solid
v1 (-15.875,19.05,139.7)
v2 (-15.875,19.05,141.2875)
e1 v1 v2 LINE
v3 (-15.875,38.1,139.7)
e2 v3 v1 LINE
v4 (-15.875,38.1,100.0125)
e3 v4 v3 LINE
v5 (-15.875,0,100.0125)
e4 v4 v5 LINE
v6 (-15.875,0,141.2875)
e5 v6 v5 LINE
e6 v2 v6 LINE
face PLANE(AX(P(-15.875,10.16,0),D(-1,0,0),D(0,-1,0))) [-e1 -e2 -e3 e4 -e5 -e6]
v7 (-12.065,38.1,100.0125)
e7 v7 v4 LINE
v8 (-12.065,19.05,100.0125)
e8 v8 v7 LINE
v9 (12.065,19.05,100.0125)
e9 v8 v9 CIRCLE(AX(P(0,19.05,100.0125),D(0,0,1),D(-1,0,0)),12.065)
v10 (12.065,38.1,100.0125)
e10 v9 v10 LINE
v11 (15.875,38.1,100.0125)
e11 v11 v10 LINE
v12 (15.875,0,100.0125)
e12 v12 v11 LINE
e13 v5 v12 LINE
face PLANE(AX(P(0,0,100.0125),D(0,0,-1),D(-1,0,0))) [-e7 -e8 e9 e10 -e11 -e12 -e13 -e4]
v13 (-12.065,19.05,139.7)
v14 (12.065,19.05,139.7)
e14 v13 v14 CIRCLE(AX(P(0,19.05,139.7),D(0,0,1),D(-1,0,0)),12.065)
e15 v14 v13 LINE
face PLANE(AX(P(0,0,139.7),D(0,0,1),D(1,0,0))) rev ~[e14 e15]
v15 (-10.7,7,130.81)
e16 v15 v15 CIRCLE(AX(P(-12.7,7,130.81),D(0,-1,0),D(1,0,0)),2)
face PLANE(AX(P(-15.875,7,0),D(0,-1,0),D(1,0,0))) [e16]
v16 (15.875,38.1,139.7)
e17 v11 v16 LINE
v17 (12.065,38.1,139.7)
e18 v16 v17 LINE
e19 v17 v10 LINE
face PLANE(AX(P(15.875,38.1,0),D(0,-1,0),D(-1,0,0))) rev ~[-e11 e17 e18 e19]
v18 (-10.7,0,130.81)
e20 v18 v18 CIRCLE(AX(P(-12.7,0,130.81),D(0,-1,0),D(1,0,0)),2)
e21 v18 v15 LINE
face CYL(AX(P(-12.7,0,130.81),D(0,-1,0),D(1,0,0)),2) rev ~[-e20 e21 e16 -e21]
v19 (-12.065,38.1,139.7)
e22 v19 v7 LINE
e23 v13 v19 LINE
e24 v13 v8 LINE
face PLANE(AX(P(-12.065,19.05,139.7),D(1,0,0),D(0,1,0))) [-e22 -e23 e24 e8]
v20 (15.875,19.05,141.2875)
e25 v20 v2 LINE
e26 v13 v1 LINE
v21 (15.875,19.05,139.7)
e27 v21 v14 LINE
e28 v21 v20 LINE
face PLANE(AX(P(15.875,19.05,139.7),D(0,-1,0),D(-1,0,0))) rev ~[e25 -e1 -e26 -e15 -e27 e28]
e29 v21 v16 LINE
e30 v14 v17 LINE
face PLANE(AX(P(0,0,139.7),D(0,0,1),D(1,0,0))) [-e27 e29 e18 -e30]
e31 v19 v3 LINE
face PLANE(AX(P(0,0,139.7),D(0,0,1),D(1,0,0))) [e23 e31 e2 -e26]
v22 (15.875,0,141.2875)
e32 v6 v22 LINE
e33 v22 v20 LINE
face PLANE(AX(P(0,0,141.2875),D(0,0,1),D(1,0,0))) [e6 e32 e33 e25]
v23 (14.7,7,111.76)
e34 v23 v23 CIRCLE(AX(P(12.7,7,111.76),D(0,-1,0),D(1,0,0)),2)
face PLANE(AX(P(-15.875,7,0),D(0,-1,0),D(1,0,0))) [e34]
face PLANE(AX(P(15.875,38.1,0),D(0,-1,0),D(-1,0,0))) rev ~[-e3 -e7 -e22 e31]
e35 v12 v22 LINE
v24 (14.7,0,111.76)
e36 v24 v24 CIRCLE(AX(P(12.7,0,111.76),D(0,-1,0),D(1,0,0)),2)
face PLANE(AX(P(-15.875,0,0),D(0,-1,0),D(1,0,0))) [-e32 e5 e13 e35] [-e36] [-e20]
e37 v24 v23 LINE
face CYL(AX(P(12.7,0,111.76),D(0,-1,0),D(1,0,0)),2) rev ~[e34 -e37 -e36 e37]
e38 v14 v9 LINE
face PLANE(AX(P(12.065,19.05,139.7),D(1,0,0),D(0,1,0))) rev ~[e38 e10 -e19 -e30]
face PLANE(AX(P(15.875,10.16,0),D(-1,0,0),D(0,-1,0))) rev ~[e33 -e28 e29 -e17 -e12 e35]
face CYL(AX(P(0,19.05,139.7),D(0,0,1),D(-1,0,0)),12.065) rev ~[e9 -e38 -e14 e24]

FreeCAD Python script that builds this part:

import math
import FreeCAD as App
import Part
import Sketcher

V = App.Vector
Q = App.Units.Quantity

doc = App.newDocument("Part")
body = doc.addObject("PartDesign::Body", "Body")

# Sketch on XY plane
sketch1 = doc.addObject("Sketcher::SketchObject", "Sketch")
body.addObject(sketch1)
sketch1.AttachmentSupport = (doc.XY_Plane, [""])
sketch1.MapMode = "FlatFace"
sketch1.addGeometry([
    Part.LineSegment(V(-15.875, 38.1, 0), V(-15.875, 0, 0)),
    Part.LineSegment(V(-15.875, 0, 0), V(15.875, 0, 0)),
    Part.LineSegment(V(15.875, 0, 0), V(15.875, 38.1, 0)),
    Part.LineSegment(V(15.875, 38.1, 0), V(-15.875, 38.1, 0)),
], False)
sketch1.addConstraint([
    Sketcher.Constraint("Coincident", 0, 2, 1, 1),
    Sketcher.Constraint("Coincident", 1, 2, 2, 1),
    Sketcher.Constraint("Coincident", 2, 2, 3, 1),
    Sketcher.Constraint("Coincident", 3, 2, 0, 1),
    Sketcher.Constraint("Vertical", 0),
    Sketcher.Constraint("Horizontal", 1),
    Sketcher.Constraint("Vertical", 2),
    Sketcher.Constraint("Horizontal", 3),
    Sketcher.Constraint("Symmetric", 0, 2, 1, 2, -1, 1),
    Sketcher.Constraint("DistanceY", 0, 2, 0, 1, Q("1.5 in")),
    Sketcher.Constraint("DistanceX", 1, 1, 1, 2, Q("1.25 in")),
])
pad1 = doc.addObject("PartDesign::Pad", "Pad")
body.addObject(pad1)
pad1.Profile = sketch1
pad1.Length = Q("5.5 in")

# Sketch on XY plane
sketch2 = doc.addObject("Sketcher::SketchObject", "Sketch001")
body.addObject(sketch2)
sketch2.AttachmentSupport = (doc.XY_Plane, [""])
sketch2.MapMode = "FlatFace"
sketch2.AttachmentOffset = App.Placement(V(0, 0, 5.5 * 25.4), App.Rotation())
sketch2.addGeometry([
    Part.LineSegment(V(-12.065, 38.1, 0), V(-12.065, 19.05, 0)),
    Part.ArcOfCircle(Part.Circle(V(0, 19.05, 0), V(0, 0, 1), 12.065), math.radians(180), math.radians(360)),
    Part.LineSegment(V(12.065, 19.05, 0), V(12.065, 38.1, 0)),
    Part.LineSegment(V(12.065, 38.1, 0), V(-12.065, 38.1, 0)),
], False)
sketch2.addConstraint([
    Sketcher.Constraint("Tangent", 0, 2, 1, 1),
    Sketcher.Constraint("Tangent", 1, 2, 2, 1),
    Sketcher.Constraint("Coincident", 2, 2, 3, 1),
    Sketcher.Constraint("Coincident", 3, 2, 0, 1),
    Sketcher.Constraint("Vertical", 0),
    Sketcher.Constraint("Vertical", 2),
    Sketcher.Constraint("Horizontal", 3),
    Sketcher.Constraint("PointOnObject", 1, 3, -2),
    Sketcher.Constraint("Radius", 1, Q("0.475 in")),
    Sketcher.Constraint("DistanceY", 0, 2, 0, 1, Q("0.75 in")),
    Sketcher.Constraint("DistanceY", -1, 1, 1, 3, Q("0.75 in")),
])
pocket1 = doc.addObject("PartDesign::Pocket", "Pocket")
body.addObject(pocket1)
pocket1.Profile = sketch2
pocket1.Type = "ThroughAll"

# Sketch on XZ plane
sketch3 = doc.addObject("Sketcher::SketchObject", "Sketch002")
body.addObject(sketch3)
sketch3.AttachmentSupport = (doc.XZ_Plane, [""])
sketch3.MapMode = "FlatFace"
sketch3.addGeometry([
    Part.Circle(V(12.7, 8.89, 0), V(0, 0, 1), 2),
    Part.Circle(V(-12.7, 130.81, 0), V(0, 0, 1), 2),
    Part.Circle(V(12.7, 111.76, 0), V(0, 0, 1), 2),
], False)
sketch3.addConstraint([
    Sketcher.Constraint("Equal", 0, 1),
    Sketcher.Constraint("Equal", 1, 2),
    Sketcher.Constraint("Vertical", 0, 3, 2, 3),
    Sketcher.Constraint("DistanceX", -1, 1, 0, 3, Q("0.5 in")),
    Sketcher.Constraint("DistanceX", 1, 3, -1, 1, Q("0.5 in")),
    Sketcher.Constraint("Diameter", 0, Q("4 mm")),
    Sketcher.Constraint("DistanceY", -1, 1, 0, 3, Q("0.35 in")),
    Sketcher.Constraint("DistanceY", -1, 1, 2, 3, Q("4.4 in")),
    Sketcher.Constraint("DistanceY", 0, 3, 1, 3, Q("4.8 in")),
])
pocket2 = doc.addObject("PartDesign::Pocket", "Pocket001")
body.addObject(pocket2)
pocket2.Profile = sketch3
pocket2.Length = Q("0.2755906 in")

# Sketch on XY plane
sketch4 = doc.addObject("Sketcher::SketchObject", "Sketch003")
body.addObject(sketch4)
sketch4.AttachmentSupport = (doc.XY_Plane, [""])
sketch4.MapMode = "FlatFace"
sketch4.AttachmentOffset = App.Placement(V(0, 0, 5.5 * 25.4), App.Rotation())
sketch4.addGeometry([
    Part.LineSegment(V(-15.875, 19.05, 0), V(-15.875, 0, 0)),
    Part.LineSegment(V(-15.875, 0, 0), V(15.875, 0, 0)),
    Part.LineSegment(V(15.875, 0, 0), V(15.875, 19.05, 0)),
    Part.LineSegment(V(15.875, 19.05, 0), V(-15.875, 19.05, 0)),
], False)
sketch4.addConstraint([
    Sketcher.Constraint("Coincident", 0, 2, 1, 1),
    Sketcher.Constraint("Coincident", 1, 2, 2, 1),
    Sketcher.Constraint("Coincident", 2, 2, 3, 1),
    Sketcher.Constraint("Coincident", 3, 2, 0, 1),
    Sketcher.Constraint("Vertical", 0),
    Sketcher.Constraint("Horizontal", 1),
    Sketcher.Constraint("Vertical", 2),
    Sketcher.Constraint("Horizontal", 3),
    Sketcher.Constraint("Symmetric", 0, 2, 1, 2, -1, 1),
    Sketcher.Constraint("DistanceY", 0, 2, 0, 1, Q("0.75 in")),
    Sketcher.Constraint("DistanceX", 1, 1, 1, 2, Q("1.25 in")),
])
pad2 = doc.addObject("PartDesign::Pad", "Pad001")
body.addObject(pad2)
pad2.Profile = sketch4
pad2.Length = Q("0.0625 in")

# Sketch on XY plane
sketch5 = doc.addObject("Sketcher::SketchObject", "Sketch004")
body.addObject(sketch5)
sketch5.AttachmentSupport = (doc.XY_Plane, [""])
sketch5.MapMode = "FlatFace"
sketch5.addGeometry([
    Part.LineSegment(V(15.875, 0, 0), V(-15.875, 0, 0)),
    Part.LineSegment(V(-15.875, 0, 0), V(-15.875, 10.16, 0)),
    Part.LineSegment(V(-15.875, 10.16, 0), V(15.875, 10.16, 0)),
    Part.LineSegment(V(15.875, 10.16, 0), V(15.875, 0, 0)),
], False)
sketch5.addConstraint([
    Sketcher.Constraint("Coincident", 0, 2, 1, 1),
    Sketcher.Constraint("Coincident", 1, 2, 2, 1),
    Sketcher.Constraint("Coincident", 2, 2, 3, 1),
    Sketcher.Constraint("Coincident", 3, 2, 0, 1),
    Sketcher.Constraint("Horizontal", 0),
    Sketcher.Constraint("Vertical", 1),
    Sketcher.Constraint("Horizontal", 2),
    Sketcher.Constraint("Vertical", 3),
    Sketcher.Constraint("Symmetric", 0, 2, 3, 2, -1, 1),
    Sketcher.Constraint("DistanceY", 1, 1, 1, 2, Q("0.4 in")),
    Sketcher.Constraint("DistanceX", 0, 2, 0, 1, Q("1.25 in")),
])
pad3 = doc.addObject("PartDesign::Pad", "Pad002")
body.addObject(pad3)
pad3.Profile = sketch5
pad3.Length = Q("0.0625 in")
pad3.Reversed = True

# Sketch on XY plane
sketch6 = doc.addObject("Sketcher::SketchObject", "Sketch005")
body.addObject(sketch6)
sketch6.AttachmentSupport = (doc.XY_Plane, [""])
sketch6.MapMode = "FlatFace"
sketch6.AttachmentOffset = App.Placement(V(0, 0, -0.0625 * 25.4), App.Rotation())
sketch6.addGeometry([
    Part.LineSegment(V(15.875, 0, 0), V(-15.875, 0, 0)),
    Part.LineSegment(V(-15.875, 0, 0), V(-15.875, 38.1, 0)),
    Part.LineSegment(V(-15.875, 38.1, 0), V(15.875, 38.1, 0)),
    Part.LineSegment(V(15.875, 38.1, 0), V(15.875, 0, 0)),
], False)
sketch6.addConstraint([
    Sketcher.Constraint("Coincident", 0, 2, 1, 1),
    Sketcher.Constraint("Coincident", 1, 2, 2, 1),
    Sketcher.Constraint("Coincident", 2, 2, 3, 1),
    Sketcher.Constraint("Coincident", 3, 2, 0, 1),
    Sketcher.Constraint("Horizontal", 0),
    Sketcher.Constraint("Vertical", 1),
    Sketcher.Constraint("Horizontal", 2),
    Sketcher.Constraint("Vertical", 3),
    Sketcher.Constraint("Symmetric", 0, 2, 3, 2, -1, 1),
    Sketcher.Constraint("DistanceY", 1, 1, 1, 2, Q("1.5 in")),
    Sketcher.Constraint("DistanceX", 0, 2, 0, 1, Q("1.25 in")),
])
pocket3 = doc.addObject("PartDesign::Pocket", "Pocket002")
body.addObject(pocket3)
pocket3.Profile = sketch6
pocket3.Length = Q("4 in")
pocket3.Reversed = True

doc.recompute()
